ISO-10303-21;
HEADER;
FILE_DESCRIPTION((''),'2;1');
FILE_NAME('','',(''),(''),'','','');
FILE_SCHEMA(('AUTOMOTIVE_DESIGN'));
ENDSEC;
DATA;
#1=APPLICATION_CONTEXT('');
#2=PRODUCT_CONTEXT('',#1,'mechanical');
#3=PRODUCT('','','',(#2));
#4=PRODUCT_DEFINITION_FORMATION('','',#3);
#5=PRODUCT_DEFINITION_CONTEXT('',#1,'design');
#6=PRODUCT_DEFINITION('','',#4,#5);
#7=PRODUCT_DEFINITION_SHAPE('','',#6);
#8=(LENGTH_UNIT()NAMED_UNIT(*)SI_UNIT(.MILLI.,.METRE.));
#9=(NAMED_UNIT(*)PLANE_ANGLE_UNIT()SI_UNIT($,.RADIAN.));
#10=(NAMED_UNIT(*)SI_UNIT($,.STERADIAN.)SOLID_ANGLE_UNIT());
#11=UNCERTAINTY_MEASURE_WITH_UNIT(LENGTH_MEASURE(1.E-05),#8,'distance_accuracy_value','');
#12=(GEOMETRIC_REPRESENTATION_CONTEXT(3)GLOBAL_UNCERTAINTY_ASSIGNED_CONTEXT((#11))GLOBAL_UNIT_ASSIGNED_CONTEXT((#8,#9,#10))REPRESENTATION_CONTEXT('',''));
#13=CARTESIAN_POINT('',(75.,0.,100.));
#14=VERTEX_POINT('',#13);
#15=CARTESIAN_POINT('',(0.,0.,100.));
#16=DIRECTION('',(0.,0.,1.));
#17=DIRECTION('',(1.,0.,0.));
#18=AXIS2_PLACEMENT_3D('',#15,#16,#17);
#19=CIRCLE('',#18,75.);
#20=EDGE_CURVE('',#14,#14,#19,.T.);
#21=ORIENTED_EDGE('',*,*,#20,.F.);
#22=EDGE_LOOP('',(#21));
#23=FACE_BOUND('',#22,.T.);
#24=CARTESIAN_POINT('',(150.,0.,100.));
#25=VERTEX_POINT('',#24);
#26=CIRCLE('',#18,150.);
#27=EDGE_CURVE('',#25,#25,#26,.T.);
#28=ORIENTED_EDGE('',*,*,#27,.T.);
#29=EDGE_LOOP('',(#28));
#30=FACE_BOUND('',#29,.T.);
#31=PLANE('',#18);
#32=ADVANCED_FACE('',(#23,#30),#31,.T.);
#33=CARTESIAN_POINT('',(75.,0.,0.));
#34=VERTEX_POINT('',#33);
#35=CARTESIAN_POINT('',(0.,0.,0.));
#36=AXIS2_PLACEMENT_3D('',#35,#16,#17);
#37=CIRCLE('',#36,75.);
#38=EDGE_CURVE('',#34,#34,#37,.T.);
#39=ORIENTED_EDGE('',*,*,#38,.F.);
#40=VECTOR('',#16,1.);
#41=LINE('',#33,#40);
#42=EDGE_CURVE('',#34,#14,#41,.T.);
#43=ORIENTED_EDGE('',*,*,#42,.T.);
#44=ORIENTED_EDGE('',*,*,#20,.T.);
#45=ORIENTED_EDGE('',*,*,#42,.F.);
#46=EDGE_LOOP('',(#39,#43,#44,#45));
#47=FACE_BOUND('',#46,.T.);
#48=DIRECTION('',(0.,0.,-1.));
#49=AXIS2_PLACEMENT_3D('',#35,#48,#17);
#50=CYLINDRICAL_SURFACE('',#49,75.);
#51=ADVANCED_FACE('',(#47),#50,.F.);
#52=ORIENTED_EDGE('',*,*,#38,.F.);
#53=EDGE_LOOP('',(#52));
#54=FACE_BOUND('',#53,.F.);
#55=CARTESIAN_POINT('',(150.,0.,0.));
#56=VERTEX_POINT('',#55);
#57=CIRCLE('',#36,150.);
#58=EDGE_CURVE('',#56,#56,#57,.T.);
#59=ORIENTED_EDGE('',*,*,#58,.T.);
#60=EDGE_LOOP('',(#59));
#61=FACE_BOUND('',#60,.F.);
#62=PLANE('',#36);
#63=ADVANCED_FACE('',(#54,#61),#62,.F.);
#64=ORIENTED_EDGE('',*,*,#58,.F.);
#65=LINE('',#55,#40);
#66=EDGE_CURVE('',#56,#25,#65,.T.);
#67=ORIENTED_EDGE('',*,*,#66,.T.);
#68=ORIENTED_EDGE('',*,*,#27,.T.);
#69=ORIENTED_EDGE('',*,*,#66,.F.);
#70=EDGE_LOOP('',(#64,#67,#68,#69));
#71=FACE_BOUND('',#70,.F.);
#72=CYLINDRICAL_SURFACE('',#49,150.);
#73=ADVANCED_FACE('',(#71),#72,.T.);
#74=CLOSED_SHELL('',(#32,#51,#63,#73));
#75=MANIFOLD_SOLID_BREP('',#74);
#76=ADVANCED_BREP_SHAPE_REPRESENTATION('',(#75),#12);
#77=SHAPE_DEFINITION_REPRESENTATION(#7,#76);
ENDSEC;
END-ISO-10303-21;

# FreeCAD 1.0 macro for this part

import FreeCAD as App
import Part
import Sketcher

doc = App.newDocument("Part")
params = doc.addObject("Spreadsheet::Sheet", "Params")
for row, (alias, value) in enumerate([
    ("pad1_length", "55.372 mm"),
    ("sketch2_diameter", "300 mm"),
    ("sketch2_diameter2", "150 mm"),
    ("pad2_length", "100 mm"),
], start=1):
    params.set(f"A{row}", alias)
    params.set(f"B{row}", "=" + value)
    params.setAlias(f"B{row}", alias)

body = doc.addObject("PartDesign::Body", "Body")

sketch1 = body.newObject("Sketcher::SketchObject", "Sketch")
sketch1.AttachmentSupport = (doc.getObject("XY_Plane"), [""])
sketch1.MapMode = "FlatFace"
sketch1.addGeometry(Part.Circle(App.Vector(0, -4, 0), App.Vector(0, 0, 1), 28), False)
sketch1.addConstraint([
    Sketcher.Constraint("PointOnObject", 0, 3, -2),
    Sketcher.Constraint("Diameter", 0, 55.839994),
    Sketcher.Constraint("DistanceY", 0, 3, -1, 1, 4.458216),
])
pad1 = body.newObject("PartDesign::Pad", "Pad")
pad1.Profile = sketch1
pad1.setExpression("Length", "Params.pad1_length")
body2 = doc.addObject("PartDesign::Body", "Body001")

sketch2 = body2.newObject("Sketcher::SketchObject", "Sketch001")
sketch2.AttachmentSupport = (doc.getObject("XY_Plane001"), [""])
sketch2.MapMode = "FlatFace"
sketch2.addGeometry([
    Part.Circle(App.Vector(0, 0, 0), App.Vector(0, 0, 1), 150),
    Part.Circle(App.Vector(0, 0, 0), App.Vector(0, 0, 1), 75),
], False)
sketch2.addConstraint([
    Sketcher.Constraint("Coincident", 0, 3, -1, 1),
    Sketcher.Constraint("Coincident", 1, 3, -1, 1),
    Sketcher.Constraint("Diameter", 0, 300.0),
    Sketcher.Constraint("Diameter", 1, 150.0),
])
sketch2.setExpression("Constraints[2]", "Params.sketch2_diameter")
sketch2.setExpression("Constraints[3]", "Params.sketch2_diameter2")
pad2 = body2.newObject("PartDesign::Pad", "Pad001")
pad2.Profile = sketch2
pad2.setExpression("Length", "Params.pad2_length")
body.Visibility = False

doc.recompute()
